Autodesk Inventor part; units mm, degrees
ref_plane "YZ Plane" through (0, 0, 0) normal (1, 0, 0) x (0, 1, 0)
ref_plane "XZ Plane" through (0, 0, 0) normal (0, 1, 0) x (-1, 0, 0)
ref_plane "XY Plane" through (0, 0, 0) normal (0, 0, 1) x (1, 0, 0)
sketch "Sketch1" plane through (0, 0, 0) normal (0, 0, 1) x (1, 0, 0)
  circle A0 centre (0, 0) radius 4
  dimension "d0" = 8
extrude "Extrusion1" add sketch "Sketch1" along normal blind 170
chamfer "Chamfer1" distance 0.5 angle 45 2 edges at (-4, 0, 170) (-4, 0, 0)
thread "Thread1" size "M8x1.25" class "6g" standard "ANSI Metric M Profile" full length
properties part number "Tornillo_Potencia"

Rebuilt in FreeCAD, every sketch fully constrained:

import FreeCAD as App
import Part
import Sketcher
from FreeCAD import Vector
Q = App.Units.Quantity


def edges_at(feature, points):
    """Names of the edges that pass closest to the given points."""
    edges = feature.Shape.Edges
    near = lambda p: min(range(len(edges)), key=lambda i: edges[i].distToShape(Part.Vertex(*p))[0])
    return sorted({f"Edge{near(p) + 1}" for p in points})

doc = App.newDocument("Part")
body = doc.addObject("PartDesign::Body", "Body")

# Sketch on XY plane
sketch1 = doc.addObject("Sketcher::SketchObject", "Sketch")
body.addObject(sketch1)
sketch1.AttachmentSupport = (doc.XY_Plane, [""])
sketch1.MapMode = "FlatFace"
sketch1.addGeometry(Part.Circle(Vector(0, 0, 0), Vector(0, 0, 1), 4), False)
sketch1.addConstraint(Sketcher.Constraint("Coincident", 0, 3, -1, 1))
sketch1.addConstraint(Sketcher.Constraint("Diameter", 0, Q("8 mm")))
pad1 = doc.addObject("PartDesign::Pad", "Pad")
body.addObject(pad1)
pad1.Profile = sketch1
pad1.Length = 170
doc.recompute()

chamfer = doc.addObject("PartDesign::Chamfer", "Chamfer")
body.addObject(chamfer)
chamfer.Base = (pad1, edges_at(pad1, [(-4, 0, 170), (-4, 0, 0)]))
chamfer.Size = 0.5

doc.recompute()
